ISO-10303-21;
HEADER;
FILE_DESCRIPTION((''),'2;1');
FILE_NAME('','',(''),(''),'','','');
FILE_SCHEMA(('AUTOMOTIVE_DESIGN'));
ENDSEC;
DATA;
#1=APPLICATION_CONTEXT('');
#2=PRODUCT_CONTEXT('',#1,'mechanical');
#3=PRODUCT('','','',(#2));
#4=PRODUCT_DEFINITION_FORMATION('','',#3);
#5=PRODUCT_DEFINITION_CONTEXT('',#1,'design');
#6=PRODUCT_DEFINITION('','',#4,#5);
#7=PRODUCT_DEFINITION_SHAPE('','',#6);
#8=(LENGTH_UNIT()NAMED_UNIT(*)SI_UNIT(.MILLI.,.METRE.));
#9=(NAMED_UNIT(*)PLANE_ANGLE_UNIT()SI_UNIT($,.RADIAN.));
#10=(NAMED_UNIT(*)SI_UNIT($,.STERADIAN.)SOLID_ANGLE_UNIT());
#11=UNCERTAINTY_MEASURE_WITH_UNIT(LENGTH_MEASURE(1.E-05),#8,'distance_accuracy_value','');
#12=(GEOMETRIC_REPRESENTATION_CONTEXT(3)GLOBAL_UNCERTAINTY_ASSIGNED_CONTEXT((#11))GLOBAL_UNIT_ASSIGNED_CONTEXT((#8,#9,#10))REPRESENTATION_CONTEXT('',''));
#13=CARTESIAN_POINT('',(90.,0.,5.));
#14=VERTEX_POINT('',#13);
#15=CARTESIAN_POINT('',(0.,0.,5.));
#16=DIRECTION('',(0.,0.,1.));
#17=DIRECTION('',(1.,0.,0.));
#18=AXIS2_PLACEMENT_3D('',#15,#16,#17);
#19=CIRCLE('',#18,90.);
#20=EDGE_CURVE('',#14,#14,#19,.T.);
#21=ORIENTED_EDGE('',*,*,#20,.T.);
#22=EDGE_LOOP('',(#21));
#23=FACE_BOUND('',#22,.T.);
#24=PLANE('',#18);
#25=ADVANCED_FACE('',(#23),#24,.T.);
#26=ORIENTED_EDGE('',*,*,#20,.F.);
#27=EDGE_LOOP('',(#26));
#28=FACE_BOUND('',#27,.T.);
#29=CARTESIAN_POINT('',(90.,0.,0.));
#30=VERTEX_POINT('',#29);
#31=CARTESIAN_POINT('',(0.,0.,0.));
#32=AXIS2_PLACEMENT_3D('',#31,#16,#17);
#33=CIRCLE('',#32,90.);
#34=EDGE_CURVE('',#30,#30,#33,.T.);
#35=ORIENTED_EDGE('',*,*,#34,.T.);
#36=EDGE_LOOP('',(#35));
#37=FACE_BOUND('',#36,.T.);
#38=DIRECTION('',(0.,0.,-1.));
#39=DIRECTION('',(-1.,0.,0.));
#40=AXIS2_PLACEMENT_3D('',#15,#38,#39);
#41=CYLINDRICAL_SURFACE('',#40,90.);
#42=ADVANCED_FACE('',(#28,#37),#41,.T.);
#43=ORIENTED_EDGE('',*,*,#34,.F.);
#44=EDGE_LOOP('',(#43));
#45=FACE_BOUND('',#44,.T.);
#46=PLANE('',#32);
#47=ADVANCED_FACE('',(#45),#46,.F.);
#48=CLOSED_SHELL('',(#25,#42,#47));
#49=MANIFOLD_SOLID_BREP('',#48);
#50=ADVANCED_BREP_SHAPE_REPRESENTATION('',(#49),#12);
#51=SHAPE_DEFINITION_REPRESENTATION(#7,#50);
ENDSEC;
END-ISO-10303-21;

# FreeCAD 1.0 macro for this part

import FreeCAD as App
import Part
import Sketcher

doc = App.newDocument("Part")
body = doc.addObject("PartDesign::Body", "Body")

sketch1 = body.newObject("Sketcher::SketchObject", "Sketch")
sketch1.AttachmentSupport = (doc.getObject("XY_Plane"), [""])
sketch1.MapMode = "FlatFace"
sketch1.addGeometry(Part.Circle(App.Vector(0, 0, 0), App.Vector(0, 0, 1), 90), False)
sketch1.addConstraint([
    Sketcher.Constraint("Coincident", 0, 3, -1, 1),
    Sketcher.Constraint("Diameter", 0, 180.0),
])
pad1 = body.newObject("PartDesign::Pad", "Pad")
pad1.Profile = sketch1
pad1.Length = 5

doc.recompute()
